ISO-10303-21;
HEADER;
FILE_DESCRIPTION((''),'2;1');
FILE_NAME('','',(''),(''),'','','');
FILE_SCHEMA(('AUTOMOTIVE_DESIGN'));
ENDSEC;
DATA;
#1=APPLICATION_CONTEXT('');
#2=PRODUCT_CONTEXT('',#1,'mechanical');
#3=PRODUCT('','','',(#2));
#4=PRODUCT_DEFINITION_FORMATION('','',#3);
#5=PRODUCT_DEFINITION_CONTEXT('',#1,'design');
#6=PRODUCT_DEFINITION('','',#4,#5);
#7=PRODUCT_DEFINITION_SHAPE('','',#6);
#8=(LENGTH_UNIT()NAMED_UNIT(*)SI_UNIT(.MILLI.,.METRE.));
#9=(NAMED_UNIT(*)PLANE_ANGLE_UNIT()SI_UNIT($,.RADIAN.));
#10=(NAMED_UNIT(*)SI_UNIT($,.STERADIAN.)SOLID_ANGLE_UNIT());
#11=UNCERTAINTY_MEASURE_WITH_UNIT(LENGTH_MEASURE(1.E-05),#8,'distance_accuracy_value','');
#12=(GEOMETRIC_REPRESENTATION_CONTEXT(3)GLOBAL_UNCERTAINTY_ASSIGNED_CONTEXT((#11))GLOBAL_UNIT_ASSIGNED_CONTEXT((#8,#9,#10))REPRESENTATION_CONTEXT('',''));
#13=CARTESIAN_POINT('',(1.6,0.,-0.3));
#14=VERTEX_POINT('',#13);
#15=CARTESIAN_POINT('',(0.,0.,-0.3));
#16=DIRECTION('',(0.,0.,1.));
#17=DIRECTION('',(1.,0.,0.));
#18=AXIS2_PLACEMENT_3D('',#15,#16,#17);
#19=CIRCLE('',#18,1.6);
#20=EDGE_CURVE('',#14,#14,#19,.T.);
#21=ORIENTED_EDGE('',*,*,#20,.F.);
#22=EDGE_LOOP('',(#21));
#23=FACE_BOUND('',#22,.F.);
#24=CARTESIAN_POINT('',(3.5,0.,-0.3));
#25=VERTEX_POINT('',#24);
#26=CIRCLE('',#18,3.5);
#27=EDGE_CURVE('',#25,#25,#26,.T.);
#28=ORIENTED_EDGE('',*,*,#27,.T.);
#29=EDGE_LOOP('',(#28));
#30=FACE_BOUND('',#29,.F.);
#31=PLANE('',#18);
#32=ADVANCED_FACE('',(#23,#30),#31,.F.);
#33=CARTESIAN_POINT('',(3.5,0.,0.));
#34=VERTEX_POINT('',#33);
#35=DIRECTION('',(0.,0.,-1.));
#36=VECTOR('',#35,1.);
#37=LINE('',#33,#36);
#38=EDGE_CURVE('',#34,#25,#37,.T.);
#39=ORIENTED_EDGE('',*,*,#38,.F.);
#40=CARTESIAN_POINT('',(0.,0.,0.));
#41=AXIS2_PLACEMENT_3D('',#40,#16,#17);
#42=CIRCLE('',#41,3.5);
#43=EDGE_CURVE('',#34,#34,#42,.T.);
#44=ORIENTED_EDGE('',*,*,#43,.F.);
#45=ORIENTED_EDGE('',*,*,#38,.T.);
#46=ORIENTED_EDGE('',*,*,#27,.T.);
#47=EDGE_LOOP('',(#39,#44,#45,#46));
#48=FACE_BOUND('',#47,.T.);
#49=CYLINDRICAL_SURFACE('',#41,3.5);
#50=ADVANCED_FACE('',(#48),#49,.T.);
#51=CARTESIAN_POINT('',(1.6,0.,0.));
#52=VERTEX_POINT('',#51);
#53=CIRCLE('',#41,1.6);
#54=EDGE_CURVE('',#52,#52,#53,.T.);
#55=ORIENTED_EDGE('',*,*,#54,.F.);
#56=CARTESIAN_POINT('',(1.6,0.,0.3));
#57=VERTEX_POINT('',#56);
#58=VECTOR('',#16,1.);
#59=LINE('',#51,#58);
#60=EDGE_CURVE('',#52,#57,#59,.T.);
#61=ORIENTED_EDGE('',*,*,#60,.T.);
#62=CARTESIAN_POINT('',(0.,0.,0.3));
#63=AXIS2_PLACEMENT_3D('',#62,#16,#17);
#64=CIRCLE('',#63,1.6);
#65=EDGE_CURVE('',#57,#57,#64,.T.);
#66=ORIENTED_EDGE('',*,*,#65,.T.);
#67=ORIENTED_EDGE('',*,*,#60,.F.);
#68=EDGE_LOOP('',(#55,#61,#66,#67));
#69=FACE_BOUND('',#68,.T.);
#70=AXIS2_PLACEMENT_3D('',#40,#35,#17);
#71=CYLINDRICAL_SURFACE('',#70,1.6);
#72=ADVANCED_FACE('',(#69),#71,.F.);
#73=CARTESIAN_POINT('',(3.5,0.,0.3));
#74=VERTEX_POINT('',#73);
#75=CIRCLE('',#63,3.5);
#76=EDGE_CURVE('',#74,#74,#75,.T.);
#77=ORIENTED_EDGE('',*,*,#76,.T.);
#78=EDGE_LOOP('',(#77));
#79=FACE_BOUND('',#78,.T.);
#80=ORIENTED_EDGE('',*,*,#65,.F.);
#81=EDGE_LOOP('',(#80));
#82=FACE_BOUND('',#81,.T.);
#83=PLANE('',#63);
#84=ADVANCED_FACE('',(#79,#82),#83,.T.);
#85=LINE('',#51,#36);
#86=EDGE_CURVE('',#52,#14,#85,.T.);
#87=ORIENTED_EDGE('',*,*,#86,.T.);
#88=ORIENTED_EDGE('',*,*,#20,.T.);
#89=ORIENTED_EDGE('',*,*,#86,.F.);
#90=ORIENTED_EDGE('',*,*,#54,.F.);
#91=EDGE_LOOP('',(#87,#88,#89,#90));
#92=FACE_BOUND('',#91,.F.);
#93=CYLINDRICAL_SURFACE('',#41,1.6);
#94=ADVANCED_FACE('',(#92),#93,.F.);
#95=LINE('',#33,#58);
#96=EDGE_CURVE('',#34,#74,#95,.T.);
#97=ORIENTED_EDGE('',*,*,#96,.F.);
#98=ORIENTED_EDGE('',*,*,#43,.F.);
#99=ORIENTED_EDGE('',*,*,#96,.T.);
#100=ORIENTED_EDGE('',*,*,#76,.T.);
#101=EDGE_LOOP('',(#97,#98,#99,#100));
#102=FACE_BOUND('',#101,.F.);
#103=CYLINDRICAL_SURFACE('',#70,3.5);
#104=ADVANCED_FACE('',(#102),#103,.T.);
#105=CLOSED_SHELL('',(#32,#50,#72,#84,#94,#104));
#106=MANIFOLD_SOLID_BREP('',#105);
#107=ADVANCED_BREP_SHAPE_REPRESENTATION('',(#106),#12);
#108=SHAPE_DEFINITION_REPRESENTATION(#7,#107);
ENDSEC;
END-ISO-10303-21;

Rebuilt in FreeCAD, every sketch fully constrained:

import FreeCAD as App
import Part
import Sketcher
Q = App.Units.Quantity

doc = App.newDocument("Part")
body = doc.addObject("PartDesign::Body", "Body")

# Sketch on XY plane
sketch1 = body.newObject("Sketcher::SketchObject", "Sketch")
sketch1.AttachmentSupport = (doc.getObject("XY_Plane"), [""])
sketch1.MapMode = "FlatFace"
sketch1.addGeometry(Part.Circle(App.Vector(0, 0, 0), App.Vector(0, 0, 1), 3.5), False)
sketch1.addGeometry(Part.Circle(App.Vector(0, 0, 0), App.Vector(0, 0, 1), 1.6), False)
sketch1.addConstraint(Sketcher.Constraint("Coincident", 0, 3, -1, 1))
sketch1.addConstraint(Sketcher.Constraint("Coincident", 1, 3, -1, 1))
sketch1.addConstraint(Sketcher.Constraint("Diameter", 0, Q("7 mm")))
sketch1.addConstraint(Sketcher.Constraint("Diameter", 1, Q("3.2 mm")))
pad1 = body.newObject("PartDesign::Pad", "Pad")
pad1.Profile = sketch1
pad1.Length = 0.6
pad1.Midplane = True

doc.recompute()
